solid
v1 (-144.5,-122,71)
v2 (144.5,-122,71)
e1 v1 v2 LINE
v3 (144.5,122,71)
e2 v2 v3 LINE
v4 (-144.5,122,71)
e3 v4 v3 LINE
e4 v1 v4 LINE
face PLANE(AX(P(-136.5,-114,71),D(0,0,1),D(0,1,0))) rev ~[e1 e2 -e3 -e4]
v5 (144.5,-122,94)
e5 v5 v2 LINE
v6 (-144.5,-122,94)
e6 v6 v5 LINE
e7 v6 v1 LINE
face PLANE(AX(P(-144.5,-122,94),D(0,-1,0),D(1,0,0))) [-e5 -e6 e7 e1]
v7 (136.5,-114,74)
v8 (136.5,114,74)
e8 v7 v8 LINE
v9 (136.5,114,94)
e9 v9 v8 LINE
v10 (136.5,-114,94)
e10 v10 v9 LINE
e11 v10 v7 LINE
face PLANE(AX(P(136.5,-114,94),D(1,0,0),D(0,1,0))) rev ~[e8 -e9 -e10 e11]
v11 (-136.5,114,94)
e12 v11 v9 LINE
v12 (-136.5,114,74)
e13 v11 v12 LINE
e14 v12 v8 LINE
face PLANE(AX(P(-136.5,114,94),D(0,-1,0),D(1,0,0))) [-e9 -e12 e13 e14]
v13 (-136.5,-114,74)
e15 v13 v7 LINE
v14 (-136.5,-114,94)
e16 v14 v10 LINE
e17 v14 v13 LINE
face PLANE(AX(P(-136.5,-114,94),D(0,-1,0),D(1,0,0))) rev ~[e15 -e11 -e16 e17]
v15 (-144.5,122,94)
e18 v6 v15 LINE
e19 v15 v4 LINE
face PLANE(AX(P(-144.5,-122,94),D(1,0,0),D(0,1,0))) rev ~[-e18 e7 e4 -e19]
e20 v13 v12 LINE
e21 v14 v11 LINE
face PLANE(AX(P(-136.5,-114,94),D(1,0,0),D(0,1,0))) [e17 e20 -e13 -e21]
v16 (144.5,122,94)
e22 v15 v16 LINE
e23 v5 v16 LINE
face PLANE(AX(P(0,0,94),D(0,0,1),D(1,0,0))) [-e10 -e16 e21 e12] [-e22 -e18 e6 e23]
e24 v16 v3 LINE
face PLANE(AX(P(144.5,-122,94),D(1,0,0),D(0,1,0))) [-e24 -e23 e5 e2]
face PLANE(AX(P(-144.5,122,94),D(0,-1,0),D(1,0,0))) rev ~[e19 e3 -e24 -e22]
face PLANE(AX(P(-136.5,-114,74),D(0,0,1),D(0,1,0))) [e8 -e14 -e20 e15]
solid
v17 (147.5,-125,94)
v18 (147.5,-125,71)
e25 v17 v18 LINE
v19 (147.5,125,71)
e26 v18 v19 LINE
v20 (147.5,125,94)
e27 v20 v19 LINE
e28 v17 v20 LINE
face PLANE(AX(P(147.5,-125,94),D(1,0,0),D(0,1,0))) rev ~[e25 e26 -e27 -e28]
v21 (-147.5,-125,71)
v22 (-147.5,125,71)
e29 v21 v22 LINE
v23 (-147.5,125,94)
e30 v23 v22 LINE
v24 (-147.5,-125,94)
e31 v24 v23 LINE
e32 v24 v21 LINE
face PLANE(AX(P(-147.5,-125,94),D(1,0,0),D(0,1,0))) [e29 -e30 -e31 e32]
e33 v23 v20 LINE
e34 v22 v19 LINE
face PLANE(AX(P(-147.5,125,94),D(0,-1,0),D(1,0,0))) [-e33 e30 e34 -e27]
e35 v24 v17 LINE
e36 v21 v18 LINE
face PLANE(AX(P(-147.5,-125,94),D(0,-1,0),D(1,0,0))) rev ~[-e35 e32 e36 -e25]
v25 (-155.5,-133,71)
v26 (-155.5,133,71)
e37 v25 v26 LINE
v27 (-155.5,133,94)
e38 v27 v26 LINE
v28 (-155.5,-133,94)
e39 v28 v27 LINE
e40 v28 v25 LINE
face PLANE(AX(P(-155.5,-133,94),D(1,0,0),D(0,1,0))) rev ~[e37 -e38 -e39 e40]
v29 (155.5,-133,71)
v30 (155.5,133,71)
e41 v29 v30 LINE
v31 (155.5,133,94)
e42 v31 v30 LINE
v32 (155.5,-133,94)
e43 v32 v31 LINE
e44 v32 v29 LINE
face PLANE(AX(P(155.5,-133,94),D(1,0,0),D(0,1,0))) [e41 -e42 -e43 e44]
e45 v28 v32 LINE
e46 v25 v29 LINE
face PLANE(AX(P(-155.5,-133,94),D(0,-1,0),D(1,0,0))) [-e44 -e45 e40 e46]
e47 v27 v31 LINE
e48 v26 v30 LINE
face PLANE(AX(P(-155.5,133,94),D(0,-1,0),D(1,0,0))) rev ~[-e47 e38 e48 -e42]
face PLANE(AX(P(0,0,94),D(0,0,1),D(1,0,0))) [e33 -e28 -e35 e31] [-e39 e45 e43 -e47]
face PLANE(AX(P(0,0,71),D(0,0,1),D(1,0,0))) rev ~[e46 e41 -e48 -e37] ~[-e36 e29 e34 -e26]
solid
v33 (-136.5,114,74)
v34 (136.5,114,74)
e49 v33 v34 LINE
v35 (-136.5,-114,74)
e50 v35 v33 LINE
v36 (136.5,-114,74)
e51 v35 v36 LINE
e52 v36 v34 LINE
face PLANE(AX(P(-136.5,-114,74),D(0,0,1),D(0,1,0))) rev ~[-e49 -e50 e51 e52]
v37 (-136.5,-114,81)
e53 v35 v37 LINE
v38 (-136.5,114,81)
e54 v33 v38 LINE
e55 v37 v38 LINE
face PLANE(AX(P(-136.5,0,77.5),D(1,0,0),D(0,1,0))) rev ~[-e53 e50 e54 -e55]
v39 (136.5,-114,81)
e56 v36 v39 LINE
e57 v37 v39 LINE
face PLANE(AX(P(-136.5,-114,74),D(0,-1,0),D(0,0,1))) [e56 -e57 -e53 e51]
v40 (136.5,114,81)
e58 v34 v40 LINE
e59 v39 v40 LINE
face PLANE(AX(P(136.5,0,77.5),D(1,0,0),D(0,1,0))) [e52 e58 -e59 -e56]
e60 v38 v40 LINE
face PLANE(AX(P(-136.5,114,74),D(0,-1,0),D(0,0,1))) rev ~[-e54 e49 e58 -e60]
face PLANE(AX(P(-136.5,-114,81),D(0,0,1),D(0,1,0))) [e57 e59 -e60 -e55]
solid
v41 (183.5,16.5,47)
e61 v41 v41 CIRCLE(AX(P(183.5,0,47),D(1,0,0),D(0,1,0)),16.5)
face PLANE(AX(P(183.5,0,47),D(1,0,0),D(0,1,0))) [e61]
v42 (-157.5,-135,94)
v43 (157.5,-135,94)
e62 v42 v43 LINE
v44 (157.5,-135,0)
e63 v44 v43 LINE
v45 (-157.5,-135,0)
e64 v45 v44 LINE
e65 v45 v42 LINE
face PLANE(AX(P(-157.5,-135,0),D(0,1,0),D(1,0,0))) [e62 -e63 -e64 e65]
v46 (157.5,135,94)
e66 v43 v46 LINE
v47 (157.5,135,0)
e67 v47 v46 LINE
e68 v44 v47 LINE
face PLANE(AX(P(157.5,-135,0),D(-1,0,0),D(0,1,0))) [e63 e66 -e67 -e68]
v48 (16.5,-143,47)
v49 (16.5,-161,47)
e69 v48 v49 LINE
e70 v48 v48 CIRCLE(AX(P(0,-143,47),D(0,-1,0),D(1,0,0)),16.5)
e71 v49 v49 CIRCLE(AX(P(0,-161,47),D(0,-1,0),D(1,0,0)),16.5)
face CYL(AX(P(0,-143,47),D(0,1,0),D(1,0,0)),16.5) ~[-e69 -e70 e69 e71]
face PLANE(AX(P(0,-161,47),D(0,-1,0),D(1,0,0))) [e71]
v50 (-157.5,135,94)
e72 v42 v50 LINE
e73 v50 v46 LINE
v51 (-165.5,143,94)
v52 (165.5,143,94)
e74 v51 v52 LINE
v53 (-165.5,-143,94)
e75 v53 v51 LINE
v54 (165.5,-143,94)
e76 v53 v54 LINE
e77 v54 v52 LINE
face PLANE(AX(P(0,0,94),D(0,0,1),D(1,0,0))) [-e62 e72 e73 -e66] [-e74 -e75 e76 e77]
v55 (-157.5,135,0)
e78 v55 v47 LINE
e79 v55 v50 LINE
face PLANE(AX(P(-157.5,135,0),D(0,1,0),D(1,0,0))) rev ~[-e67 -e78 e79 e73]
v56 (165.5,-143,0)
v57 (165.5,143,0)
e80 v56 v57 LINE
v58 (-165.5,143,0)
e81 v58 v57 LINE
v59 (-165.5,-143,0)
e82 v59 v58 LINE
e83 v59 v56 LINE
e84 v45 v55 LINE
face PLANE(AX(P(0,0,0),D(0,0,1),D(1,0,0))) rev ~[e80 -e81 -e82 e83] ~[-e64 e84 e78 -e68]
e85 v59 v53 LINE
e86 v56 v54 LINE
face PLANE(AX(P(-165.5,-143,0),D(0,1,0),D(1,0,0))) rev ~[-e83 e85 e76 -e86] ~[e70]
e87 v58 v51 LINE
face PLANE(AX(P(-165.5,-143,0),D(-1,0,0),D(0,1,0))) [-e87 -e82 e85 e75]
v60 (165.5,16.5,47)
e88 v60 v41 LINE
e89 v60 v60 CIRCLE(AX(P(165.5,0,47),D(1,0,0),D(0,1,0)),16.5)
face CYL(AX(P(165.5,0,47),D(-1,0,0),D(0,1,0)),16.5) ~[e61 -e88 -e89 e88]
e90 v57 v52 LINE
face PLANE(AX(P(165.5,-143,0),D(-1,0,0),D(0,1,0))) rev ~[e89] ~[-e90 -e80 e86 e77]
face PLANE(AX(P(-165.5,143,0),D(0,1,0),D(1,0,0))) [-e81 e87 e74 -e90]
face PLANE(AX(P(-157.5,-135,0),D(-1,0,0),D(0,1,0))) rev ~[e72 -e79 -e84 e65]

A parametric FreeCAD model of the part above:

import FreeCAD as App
import Part
import Sketcher

V = App.Vector


def add_polygon(sketch, points):
    """Adds a closed chain of lines whose ends are joined by coincident constraints."""
    first, n = sketch.GeometryCount, len(points)
    for a, b in zip(points, points[1:] + points[:1]):
        sketch.addGeometry(Part.LineSegment(App.Vector(*a, 0), App.Vector(*b, 0)), False)
    for i in range(n):
        sketch.addConstraint(Sketcher.Constraint("Coincident", first + i, 2, first + (i + 1) % n, 1))

doc = App.newDocument("Part")
params = doc.addObject("Spreadsheet::Sheet", "Params")
for row, (alias, value) in enumerate([
    ("sketch1_width", "331 mm"),
    ("sketch1_width2", "315 mm"),
    ("sketch1_height", "286 mm"),
    ("sketch1_height2", "270 mm"),
    ("pad1_length", "94 mm"),
    ("sketch2_diameter", "33 mm"),
    ("pad2_length", "18 mm"),
    ("sketch3_diameter", "33 mm"),
    ("pad3_length", "18 mm"),
    ("sketch4_width", "311 mm"),
    ("sketch4_width2", "295 mm"),
    ("sketch4_width3", "289 mm"),
    ("sketch4_width4", "273 mm"),
    ("sketch4_height", "266 mm"),
    ("pad4_length", "23 mm"),
    ("sketch5_width", "228 mm"),
    ("sketch5_height", "3 mm"),
    ("pad5_length", "273 mm"),
    ("sketch6_width", "228 mm"),
    ("sketch6_height", "7 mm"),
    ("pad6_length", "273 mm"),
], start=1):
    params.set(f"A{row}", alias)
    params.set(f"B{row}", "=" + value)
    params.setAlias(f"B{row}", alias)

body = doc.addObject("PartDesign::Body", "Body")

sketch1 = body.newObject("Sketcher::SketchObject", "Sketch")
sketch1.AttachmentSupport = (doc.getObject("XY_Plane"), [""])
sketch1.MapMode = "FlatFace"
add_polygon(sketch1, [(-165.5, 143), (-165.5, -143), (165.5, -143), (165.5, 143)])
add_polygon(sketch1, [(157.5, -135), (-157.5, -135), (-157.5, 135), (157.5, 135)])
sketch1.addConstraint(Sketcher.Constraint("Vertical", 0))
sketch1.addConstraint(Sketcher.Constraint("Horizontal", 1))
sketch1.addConstraint(Sketcher.Constraint("Vertical", 2))
sketch1.addConstraint(Sketcher.Constraint("Horizontal", 3))
sketch1.addConstraint(Sketcher.Constraint("Horizontal", 4))
sketch1.addConstraint(Sketcher.Constraint("Vertical", 5))
sketch1.addConstraint(Sketcher.Constraint("Horizontal", 6))
sketch1.addConstraint(Sketcher.Constraint("Vertical", 7))
sketch1.addConstraint(Sketcher.Constraint("Symmetric", 0, 2, 2, 2, -1, 1))
sketch1.addConstraint(Sketcher.Constraint("Symmetric", 4, 2, 6, 2, -1, 1))
sketch1.addConstraint(Sketcher.Constraint("DistanceX", 1, 1, 1, 2, 331.0))
sketch1.addConstraint(Sketcher.Constraint("DistanceX", 4, 2, 4, 1, 315.0))
sketch1.addConstraint(Sketcher.Constraint("DistanceY", 0, 2, 0, 1, 286.0))
sketch1.addConstraint(Sketcher.Constraint("DistanceY", 5, 1, 5, 2, 270.0))
sketch1.setExpression("Constraints[18]", "Params.sketch1_width")
sketch1.setExpression("Constraints[19]", "Params.sketch1_width2")
sketch1.setExpression("Constraints[20]", "Params.sketch1_height")
sketch1.setExpression("Constraints[21]", "Params.sketch1_height2")
pad1 = body.newObject("PartDesign::Pad", "Pad")
pad1.Profile = sketch1
pad1.setExpression("Length", "Params.pad1_length")

sketch2 = body.newObject("Sketcher::SketchObject", "Sketch001")
sketch2.AttachmentSupport = (doc.getObject("YZ_Plane"), [""])
sketch2.MapMode = "FlatFace"
sketch2.AttachmentOffset = App.Placement(V(0, 0, 165.5), App.Rotation())
sketch2.addGeometry(Part.Circle(V(0, 47, 0), V(0, 0, 1), 16.5), False)
sketch2.addConstraint(Sketcher.Constraint("PointOnObject", 0, 3, -2))
sketch2.addConstraint(Sketcher.Constraint("Diameter", 0, 33.0))
sketch2.addConstraint(Sketcher.Constraint("DistanceY", -1, 1, 0, 3, 47.0))
sketch2.setExpression("Constraints[1]", "Params.sketch2_diameter")
pad2 = body.newObject("PartDesign::Pad", "Pad001")
pad2.Profile = sketch2
pad2.setExpression("Length", "Params.pad2_length")

sketch3 = body.newObject("Sketcher::SketchObject", "Sketch002")
sketch3.AttachmentSupport = (doc.getObject("XZ_Plane"), [""])
sketch3.MapMode = "FlatFace"
sketch3.AttachmentOffset = App.Placement(V(0, 0, 143), App.Rotation())
sketch3.addGeometry(Part.Circle(V(0, 47, 0), V(0, 0, 1), 16.5), False)
sketch3.addConstraint(Sketcher.Constraint("PointOnObject", 0, 3, -2))
sketch3.addConstraint(Sketcher.Constraint("Diameter", 0, 33.0))
sketch3.addConstraint(Sketcher.Constraint("DistanceY", -1, 1, 0, 3, 47.0))
sketch3.setExpression("Constraints[1]", "Params.sketch3_diameter")
pad3 = body.newObject("PartDesign::Pad", "Pad002")
pad3.Profile = sketch3
pad3.setExpression("Length", "Params.pad3_length")
body2 = doc.addObject("PartDesign::Body", "Body001")
body2.AllowCompound = True

sketch4 = body2.newObject("Sketcher::SketchObject", "Sketch003")
sketch4.AttachmentSupport = (doc.getObject("XY_Plane001"), [""])
sketch4.MapMode = "FlatFace"
sketch4.AttachmentOffset = App.Placement(V(0, 0, 94), App.Rotation())
add_polygon(sketch4, [(-155.5, 133), (-155.5, -133), (155.5, -133), (155.5, 133)])
add_polygon(sketch4, [(147.5, -125), (-147.5, -125), (-147.5, 125), (147.5, 125)])
add_polygon(sketch4, [(-144.5, 122), (-144.5, -122), (144.5, -122), (144.5, 122)])
add_polygon(sketch4, [(136.5, -114), (-136.5, -114), (-136.5, 114), (136.5, 114)])
sketch4.addConstraint(Sketcher.Constraint("Vertical", 0))
sketch4.addConstraint(Sketcher.Constraint("Horizontal", 1))
sketch4.addConstraint(Sketcher.Constraint("Vertical", 2))
sketch4.addConstraint(Sketcher.Constraint("Horizontal", 3))
sketch4.addConstraint(Sketcher.Constraint("Horizontal", 4))
sketch4.addConstraint(Sketcher.Constraint("Vertical", 5))
sketch4.addConstraint(Sketcher.Constraint("Horizontal", 6))
sketch4.addConstraint(Sketcher.Constraint("Vertical", 7))
sketch4.addConstraint(Sketcher.Constraint("Vertical", 8))
sketch4.addConstraint(Sketcher.Constraint("Horizontal", 9))
sketch4.addConstraint(Sketcher.Constraint("Vertical", 10))
sketch4.addConstraint(Sketcher.Constraint("Horizontal", 11))
sketch4.addConstraint(Sketcher.Constraint("Horizontal", 12))
sketch4.addConstraint(Sketcher.Constraint("Vertical", 13))
sketch4.addConstraint(Sketcher.Constraint("Horizontal", 14))
sketch4.addConstraint(Sketcher.Constraint("Vertical", 15))
sketch4.addConstraint(Sketcher.Constraint("Symmetric", 0, 2, 2, 2, -1, 1))
sketch4.addConstraint(Sketcher.Constraint("Symmetric", 4, 2, 6, 2, -1, 1))
sketch4.addConstraint(Sketcher.Constraint("Symmetric", 8, 2, 10, 2, -1, 1))
sketch4.addConstraint(Sketcher.Constraint("Symmetric", 12, 2, 14, 2, -1, 1))
sketch4.addConstraint(Sketcher.Constraint("DistanceX", 1, 1, 1, 2, 311.0))
sketch4.addConstraint(Sketcher.Constraint("DistanceX", 4, 2, 4, 1, 295.0))
sketch4.addConstraint(Sketcher.Constraint("DistanceX", 9, 1, 9, 2, 289.0))
sketch4.addConstraint(Sketcher.Constraint("DistanceX", 12, 2, 12, 1, 273.0))
sketch4.addConstraint(Sketcher.Constraint("DistanceY", 0, 2, 0, 1, 266.0))
sketch4.addConstraint(Sketcher.Constraint("DistanceY", 5, 1, 5, 2, 250.0))
sketch4.addConstraint(Sketcher.Constraint("DistanceY", 8, 2, 8, 1, 244.0))
sketch4.addConstraint(Sketcher.Constraint("DistanceY", 13, 1, 13, 2, 228.0))
sketch4.setExpression("Constraints[36]", "Params.sketch4_width")
sketch4.setExpression("Constraints[37]", "Params.sketch4_width2")
sketch4.setExpression("Constraints[38]", "Params.sketch4_width3")
sketch4.setExpression("Constraints[39]", "Params.sketch4_width4")
sketch4.setExpression("Constraints[40]", "Params.sketch4_height")
pad4 = body2.newObject("PartDesign::Pad", "Pad003")
pad4.Profile = sketch4
pad4.setExpression("Length", "Params.pad4_length")
pad4.Reversed = True

sketch5 = body2.newObject("Sketcher::SketchObject", "Sketch004")
sketch5.AttachmentSupport = (doc.getObject("YZ_Plane001"), [""])
sketch5.MapMode = "FlatFace"
sketch5.AttachmentOffset = App.Placement(V(0, 0, -136.5), App.Rotation())
add_polygon(sketch5, [(-114, 74), (-114, 71), (114, 71), (114, 74)])
sketch5.addConstraint(Sketcher.Constraint("Vertical", 0))
sketch5.addConstraint(Sketcher.Constraint("Horizontal", 1))
sketch5.addConstraint(Sketcher.Constraint("Vertical", 2))
sketch5.addConstraint(Sketcher.Constraint("Horizontal", 3))
sketch5.addConstraint(Sketcher.Constraint("DistanceX", 1, 1, 1, 2, 228.0))
sketch5.addConstraint(Sketcher.Constraint("DistanceY", 0, 2, 0, 1, 3.0))
sketch5.addConstraint(Sketcher.Constraint("DistanceX", 0, 2, -1, 1, 114.0))
sketch5.addConstraint(Sketcher.Constraint("DistanceY", -1, 1, 0, 2, 71.0))
sketch5.setExpression("Constraints[8]", "Params.sketch5_width")
sketch5.setExpression("Constraints[9]", "Params.sketch5_height")
pad5 = body2.newObject("PartDesign::Pad", "Pad004")
pad5.Profile = sketch5
pad5.setExpression("Length", "Params.pad5_length")
body3 = doc.addObject("PartDesign::Body", "Body002")

sketch6 = body3.newObject("Sketcher::SketchObject", "Sketch005")
sketch6.AttachmentSupport = (doc.getObject("YZ_Plane002"), [""])
sketch6.MapMode = "FlatFace"
sketch6.AttachmentOffset = App.Placement(V(0, 0, -136.5), App.Rotation())
add_polygon(sketch6, [(-114, 81), (-114, 74), (114, 74), (114, 81)])
sketch6.addConstraint(Sketcher.Constraint("Vertical", 0))
sketch6.addConstraint(Sketcher.Constraint("Horizontal", 1))
sketch6.addConstraint(Sketcher.Constraint("Vertical", 2))
sketch6.addConstraint(Sketcher.Constraint("Horizontal", 3))
sketch6.addConstraint(Sketcher.Constraint("DistanceX", 1, 1, 1, 2, 228.0))
sketch6.addConstraint(Sketcher.Constraint("DistanceY", 0, 2, 0, 1, 7.0))
sketch6.addConstraint(Sketcher.Constraint("DistanceX", 0, 2, -1, 1, 114.0))
sketch6.addConstraint(Sketcher.Constraint("DistanceY", -1, 1, 0, 2, 74.0))
sketch6.setExpression("Constraints[8]", "Params.sketch6_width")
sketch6.setExpression("Constraints[9]", "Params.sketch6_height")
pad6 = body3.newObject("PartDesign::Pad", "Pad005")
pad6.Profile = sketch6
pad6.setExpression("Length", "Params.pad6_length")

doc.recompute()
